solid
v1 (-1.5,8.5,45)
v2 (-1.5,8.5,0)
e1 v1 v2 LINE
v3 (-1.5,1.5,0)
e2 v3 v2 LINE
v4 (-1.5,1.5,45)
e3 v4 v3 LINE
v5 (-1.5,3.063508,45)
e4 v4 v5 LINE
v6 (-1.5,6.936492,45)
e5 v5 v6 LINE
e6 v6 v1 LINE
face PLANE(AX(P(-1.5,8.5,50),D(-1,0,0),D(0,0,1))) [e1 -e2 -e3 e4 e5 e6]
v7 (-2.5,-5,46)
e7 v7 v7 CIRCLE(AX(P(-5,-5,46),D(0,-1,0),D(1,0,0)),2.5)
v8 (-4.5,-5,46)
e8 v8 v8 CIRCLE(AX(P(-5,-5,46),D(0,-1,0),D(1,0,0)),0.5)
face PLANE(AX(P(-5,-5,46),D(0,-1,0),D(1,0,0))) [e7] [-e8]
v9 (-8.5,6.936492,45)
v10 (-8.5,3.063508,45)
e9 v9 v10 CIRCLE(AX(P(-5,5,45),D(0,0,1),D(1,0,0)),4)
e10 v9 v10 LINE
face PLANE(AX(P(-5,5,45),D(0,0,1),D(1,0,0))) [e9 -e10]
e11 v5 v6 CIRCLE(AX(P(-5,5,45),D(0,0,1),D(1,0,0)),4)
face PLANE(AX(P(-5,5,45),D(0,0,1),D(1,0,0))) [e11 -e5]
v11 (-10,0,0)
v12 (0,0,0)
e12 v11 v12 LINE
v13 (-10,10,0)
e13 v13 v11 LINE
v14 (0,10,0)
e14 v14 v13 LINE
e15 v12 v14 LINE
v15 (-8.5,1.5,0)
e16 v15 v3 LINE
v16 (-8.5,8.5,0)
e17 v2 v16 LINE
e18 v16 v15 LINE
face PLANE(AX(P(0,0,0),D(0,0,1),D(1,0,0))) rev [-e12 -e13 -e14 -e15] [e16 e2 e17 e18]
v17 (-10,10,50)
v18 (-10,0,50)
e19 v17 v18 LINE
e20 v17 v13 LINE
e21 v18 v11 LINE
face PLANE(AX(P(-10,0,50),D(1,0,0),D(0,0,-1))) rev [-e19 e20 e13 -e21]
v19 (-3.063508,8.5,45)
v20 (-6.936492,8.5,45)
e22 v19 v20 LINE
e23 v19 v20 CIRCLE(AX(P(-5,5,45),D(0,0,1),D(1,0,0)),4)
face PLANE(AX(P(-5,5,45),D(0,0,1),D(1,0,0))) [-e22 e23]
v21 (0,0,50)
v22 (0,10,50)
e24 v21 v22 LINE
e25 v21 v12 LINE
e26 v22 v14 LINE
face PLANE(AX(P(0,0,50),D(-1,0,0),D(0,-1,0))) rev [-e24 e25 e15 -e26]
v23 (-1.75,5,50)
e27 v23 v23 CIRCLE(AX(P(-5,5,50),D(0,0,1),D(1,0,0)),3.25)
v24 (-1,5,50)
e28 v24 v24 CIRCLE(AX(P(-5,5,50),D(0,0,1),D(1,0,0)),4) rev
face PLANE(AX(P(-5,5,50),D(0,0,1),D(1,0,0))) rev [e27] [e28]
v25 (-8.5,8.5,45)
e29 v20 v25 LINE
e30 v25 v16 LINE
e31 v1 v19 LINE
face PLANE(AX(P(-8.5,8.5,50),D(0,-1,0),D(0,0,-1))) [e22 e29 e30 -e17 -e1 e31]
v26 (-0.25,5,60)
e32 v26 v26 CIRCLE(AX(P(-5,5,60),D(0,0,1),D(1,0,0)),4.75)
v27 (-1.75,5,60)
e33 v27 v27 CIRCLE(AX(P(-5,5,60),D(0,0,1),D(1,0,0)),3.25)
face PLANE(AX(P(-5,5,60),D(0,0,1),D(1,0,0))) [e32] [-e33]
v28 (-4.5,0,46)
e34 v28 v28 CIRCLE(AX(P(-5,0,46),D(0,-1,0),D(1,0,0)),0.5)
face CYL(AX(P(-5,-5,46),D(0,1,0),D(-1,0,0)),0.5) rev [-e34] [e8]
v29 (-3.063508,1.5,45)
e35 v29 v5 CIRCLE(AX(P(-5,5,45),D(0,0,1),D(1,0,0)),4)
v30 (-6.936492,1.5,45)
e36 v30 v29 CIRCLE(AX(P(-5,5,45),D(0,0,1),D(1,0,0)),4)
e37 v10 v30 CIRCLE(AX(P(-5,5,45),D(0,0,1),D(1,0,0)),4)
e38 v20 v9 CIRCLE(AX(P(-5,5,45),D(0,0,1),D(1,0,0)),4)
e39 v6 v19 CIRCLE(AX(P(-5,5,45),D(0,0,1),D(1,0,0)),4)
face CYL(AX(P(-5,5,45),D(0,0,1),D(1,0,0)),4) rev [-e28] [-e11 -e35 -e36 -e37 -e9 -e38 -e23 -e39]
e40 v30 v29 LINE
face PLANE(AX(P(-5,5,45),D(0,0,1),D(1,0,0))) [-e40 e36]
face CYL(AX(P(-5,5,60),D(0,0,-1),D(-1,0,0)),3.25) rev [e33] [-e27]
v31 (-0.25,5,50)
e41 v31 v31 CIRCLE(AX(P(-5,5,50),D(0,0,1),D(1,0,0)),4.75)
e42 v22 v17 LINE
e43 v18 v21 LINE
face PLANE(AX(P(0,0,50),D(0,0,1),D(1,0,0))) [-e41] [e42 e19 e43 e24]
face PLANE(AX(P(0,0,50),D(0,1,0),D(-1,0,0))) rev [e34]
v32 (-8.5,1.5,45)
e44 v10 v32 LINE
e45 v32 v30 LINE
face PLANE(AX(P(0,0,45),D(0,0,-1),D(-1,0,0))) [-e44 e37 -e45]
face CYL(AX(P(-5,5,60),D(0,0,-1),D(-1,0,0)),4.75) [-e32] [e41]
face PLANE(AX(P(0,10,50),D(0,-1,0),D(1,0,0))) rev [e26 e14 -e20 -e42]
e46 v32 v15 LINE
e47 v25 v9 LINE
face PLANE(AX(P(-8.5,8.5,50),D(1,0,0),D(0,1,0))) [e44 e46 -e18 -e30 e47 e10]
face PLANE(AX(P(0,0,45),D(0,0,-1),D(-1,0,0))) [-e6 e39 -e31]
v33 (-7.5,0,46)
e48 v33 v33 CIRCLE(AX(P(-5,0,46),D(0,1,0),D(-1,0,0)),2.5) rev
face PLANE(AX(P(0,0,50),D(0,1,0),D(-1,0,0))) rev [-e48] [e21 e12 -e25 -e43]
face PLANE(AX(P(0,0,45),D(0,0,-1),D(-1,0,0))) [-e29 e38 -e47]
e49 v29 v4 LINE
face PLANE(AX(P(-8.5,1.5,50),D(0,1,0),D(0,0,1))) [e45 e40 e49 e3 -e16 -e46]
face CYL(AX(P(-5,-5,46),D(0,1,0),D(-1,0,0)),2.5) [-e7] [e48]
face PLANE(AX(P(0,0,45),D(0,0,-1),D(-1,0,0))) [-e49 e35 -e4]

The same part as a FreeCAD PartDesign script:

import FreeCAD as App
import Part
import Sketcher
from FreeCAD import Vector

doc = App.newDocument("Part")
params = doc.addObject("Spreadsheet::Sheet", "Params")
for row, (alias, value) in enumerate([
    ("sketch1_width", "10 mm"),
    ("sketch1_width2", "7 mm"),
    ("pad1_length", "50 mm"),
    ("sketch2_width", "7 mm"),
    ("pad2_length", "5 mm"),
    ("sketch3_diameter", "8 mm"),
    ("pocket1_length", "5 mm"),
    ("sketch4_diameter", "5 mm"),
    ("sketch4_diameter2", "1 mm"),
    ("pad3_length", "5 mm"),
    ("sketch5_diameter", "9.5 mm"),
    ("sketch5_diameter2", "6.5 mm"),
    ("pad4_length", "10 mm"),
], start=1):
    params.set(f"A{row}", alias)
    params.set(f"B{row}", "=" + value)
    params.setAlias(f"B{row}", alias)

body = doc.addObject("PartDesign::Body", "Body")

sketch1 = body.newObject("Sketcher::SketchObject", "Sketch")
sketch1.AttachmentSupport = (doc.getObject("XY_Plane"), [""])
sketch1.MapMode = "FlatFace"
sketch1.addGeometry(Part.LineSegment(Vector(-10, 10, 0), Vector(-10, 0, 0)), False)
sketch1.addGeometry(Part.LineSegment(Vector(-10, 0, 0), Vector(0, 0, 0)), False)
sketch1.addGeometry(Part.LineSegment(Vector(0, 0, 0), Vector(0, 10, 0)), False)
sketch1.addGeometry(Part.LineSegment(Vector(0, 10, 0), Vector(-10, 10, 0)), False)
sketch1.addGeometry(Part.LineSegment(Vector(-1.5, 1.5, 0), Vector(-8.5, 1.5, 0)), False)
sketch1.addGeometry(Part.LineSegment(Vector(-8.5, 1.5, 0), Vector(-8.5, 8.5, 0)), False)
sketch1.addGeometry(Part.LineSegment(Vector(-8.5, 8.5, 0), Vector(-1.5, 8.5, 0)), False)
sketch1.addGeometry(Part.LineSegment(Vector(-1.5, 8.5, 0), Vector(-1.5, 1.5, 0)), False)
sketch1.addConstraint(Sketcher.Constraint("Coincident", 0, 2, 1, 1))
sketch1.addConstraint(Sketcher.Constraint("Coincident", 1, 2, 2, 1))
sketch1.addConstraint(Sketcher.Constraint("Coincident", 2, 2, 3, 1))
sketch1.addConstraint(Sketcher.Constraint("Coincident", 3, 2, 0, 1))
sketch1.addConstraint(Sketcher.Constraint("Coincident", 4, 2, 5, 1))
sketch1.addConstraint(Sketcher.Constraint("Coincident", 5, 2, 6, 1))
sketch1.addConstraint(Sketcher.Constraint("Coincident", 6, 2, 7, 1))
sketch1.addConstraint(Sketcher.Constraint("Coincident", 7, 2, 4, 1))
sketch1.addConstraint(Sketcher.Constraint("Vertical", 0))
sketch1.addConstraint(Sketcher.Constraint("Horizontal", 1))
sketch1.addConstraint(Sketcher.Constraint("Vertical", 2))
sketch1.addConstraint(Sketcher.Constraint("Horizontal", 3))
sketch1.addConstraint(Sketcher.Constraint("Horizontal", 4))
sketch1.addConstraint(Sketcher.Constraint("Vertical", 5))
sketch1.addConstraint(Sketcher.Constraint("Horizontal", 6))
sketch1.addConstraint(Sketcher.Constraint("Vertical", 7))
sketch1.addConstraint(Sketcher.Constraint("Coincident", 1, 2, -1, 1))
sketch1.addConstraint(Sketcher.Constraint("Equal", 3, 0))
sketch1.addConstraint(Sketcher.Constraint("Equal", 6, 5))
sketch1.addConstraint(Sketcher.Constraint("DistanceX", 1, 1, 1, 2, 10.0))
sketch1.addConstraint(Sketcher.Constraint("DistanceX", 4, 2, 4, 1, 7.0))
sketch1.addConstraint(Sketcher.Constraint("DistanceX", 4, 2, -1, 1, 8.5))
sketch1.addConstraint(Sketcher.Constraint("DistanceY", -1, 1, 4, 2, 1.5))
sketch1.setExpression("Constraints[19]", "Params.sketch1_width")
sketch1.setExpression("Constraints[20]", "Params.sketch1_width2")
pad1 = body.newObject("PartDesign::Pad", "Pad")
pad1.Profile = sketch1
pad1.setExpression("Length", "Params.pad1_length")

sketch2 = body.newObject("Sketcher::SketchObject", "Sketch001")
sketch2.AttachmentSupport = (doc.getObject("XY_Plane"), [""])
sketch2.MapMode = "FlatFace"
sketch2.AttachmentOffset = App.Placement(Vector(0, 0, 50), App.Rotation())
sketch2.addGeometry(Part.LineSegment(Vector(-8.5, 8.5, 0), Vector(-8.5, 1.5, 0)), False)
sketch2.addGeometry(Part.LineSegment(Vector(-8.5, 1.5, 0), Vector(-1.5, 1.5, 0)), False)
sketch2.addGeometry(Part.LineSegment(Vector(-1.5, 1.5, 0), Vector(-1.5, 8.5, 0)), False)
sketch2.addGeometry(Part.LineSegment(Vector(-1.5, 8.5, 0), Vector(-8.5, 8.5, 0)), False)
sketch2.addConstraint(Sketcher.Constraint("Coincident", 0, 2, 1, 1))
sketch2.addConstraint(Sketcher.Constraint("Coincident", 1, 2, 2, 1))
sketch2.addConstraint(Sketcher.Constraint("Coincident", 2, 2, 3, 1))
sketch2.addConstraint(Sketcher.Constraint("Coincident", 3, 2, 0, 1))
sketch2.addConstraint(Sketcher.Constraint("Vertical", 0))
sketch2.addConstraint(Sketcher.Constraint("Horizontal", 1))
sketch2.addConstraint(Sketcher.Constraint("Vertical", 2))
sketch2.addConstraint(Sketcher.Constraint("Horizontal", 3))
sketch2.addConstraint(Sketcher.Constraint("Equal", 3, 0))
sketch2.addConstraint(Sketcher.Constraint("DistanceX", 1, 1, 1, 2, 7.0))
sketch2.addConstraint(Sketcher.Constraint("DistanceX", 0, 2, -1, 1, 8.5))
sketch2.addConstraint(Sketcher.Constraint("DistanceY", -1, 1, 0, 2, 1.5))
sketch2.setExpression("Constraints[9]", "Params.sketch2_width")
pad2 = body.newObject("PartDesign::Pad", "Pad001")
pad2.Profile = sketch2
pad2.setExpression("Length", "Params.pad2_length")
pad2.Reversed = True

sketch3 = body.newObject("Sketcher::SketchObject", "Sketch002")
sketch3.AttachmentSupport = (doc.getObject("XY_Plane"), [""])
sketch3.MapMode = "FlatFace"
sketch3.AttachmentOffset = App.Placement(Vector(0, 0, 50), App.Rotation())
sketch3.addGeometry(Part.Circle(Vector(-5, 5, 0), Vector(0, 0, 1), 4), False)
sketch3.addConstraint(Sketcher.Constraint("Diameter", 0, 8.0))
sketch3.addConstraint(Sketcher.Constraint("DistanceX", 0, 3, -1, 1, 5.0))
sketch3.addConstraint(Sketcher.Constraint("DistanceY", -1, 1, 0, 3, 5.0))
sketch3.setExpression("Constraints[0]", "Params.sketch3_diameter")
pocket1 = body.newObject("PartDesign::Pocket", "Pocket")
pocket1.Profile = sketch3
pocket1.setExpression("Length", "Params.pocket1_length")

sketch4 = body.newObject("Sketcher::SketchObject", "Sketch003")
sketch4.AttachmentSupport = (doc.getObject("XZ_Plane"), [""])
sketch4.MapMode = "FlatFace"
sketch4.addGeometry(Part.Circle(Vector(-5, 46, 0), Vector(0, 0, 1), 2.5), False)
sketch4.addGeometry(Part.Circle(Vector(-5, 46, 0), Vector(0, 0, 1), 0.5), False)
sketch4.addConstraint(Sketcher.Constraint("Coincident", 1, 3, 0, 3))
sketch4.addConstraint(Sketcher.Constraint("Diameter", 0, 5.0))
sketch4.addConstraint(Sketcher.Constraint("Diameter", 1, 1.0))
sketch4.addConstraint(Sketcher.Constraint("DistanceX", 0, 3, -1, 1, 5.0))
sketch4.addConstraint(Sketcher.Constraint("DistanceY", -1, 1, 0, 3, 46.0))
sketch4.setExpression("Constraints[1]", "Params.sketch4_diameter")
sketch4.setExpression("Constraints[2]", "Params.sketch4_diameter2")
pad3 = body.newObject("PartDesign::Pad", "Pad002")
pad3.Profile = sketch4
pad3.setExpression("Length", "Params.pad3_length")

sketch5 = body.newObject("Sketcher::SketchObject", "Sketch004")
sketch5.AttachmentSupport = (doc.getObject("XY_Plane"), [""])
sketch5.MapMode = "FlatFace"
sketch5.AttachmentOffset = App.Placement(Vector(0, 0, 50), App.Rotation())
sketch5.addGeometry(Part.Circle(Vector(-5, 5, 0), Vector(0, 0, 1), 4.75), False)
sketch5.addGeometry(Part.Circle(Vector(-5, 5, 0), Vector(0, 0, 1), 3.25), False)
sketch5.addConstraint(Sketcher.Constraint("Coincident", 1, 3, 0, 3))
sketch5.addConstraint(Sketcher.Constraint("Diameter", 0, 9.5))
sketch5.addConstraint(Sketcher.Constraint("Diameter", 1, 6.5))
sketch5.addConstraint(Sketcher.Constraint("DistanceX", 0, 3, -1, 1, 5.0))
sketch5.addConstraint(Sketcher.Constraint("DistanceY", -1, 1, 0, 3, 5.0))
sketch5.setExpression("Constraints[1]", "Params.sketch5_diameter")
sketch5.setExpression("Constraints[2]", "Params.sketch5_diameter2")
pad4 = body.newObject("PartDesign::Pad", "Pad003")
pad4.Profile = sketch5
pad4.setExpression("Length", "Params.pad4_length")

doc.recompute()
